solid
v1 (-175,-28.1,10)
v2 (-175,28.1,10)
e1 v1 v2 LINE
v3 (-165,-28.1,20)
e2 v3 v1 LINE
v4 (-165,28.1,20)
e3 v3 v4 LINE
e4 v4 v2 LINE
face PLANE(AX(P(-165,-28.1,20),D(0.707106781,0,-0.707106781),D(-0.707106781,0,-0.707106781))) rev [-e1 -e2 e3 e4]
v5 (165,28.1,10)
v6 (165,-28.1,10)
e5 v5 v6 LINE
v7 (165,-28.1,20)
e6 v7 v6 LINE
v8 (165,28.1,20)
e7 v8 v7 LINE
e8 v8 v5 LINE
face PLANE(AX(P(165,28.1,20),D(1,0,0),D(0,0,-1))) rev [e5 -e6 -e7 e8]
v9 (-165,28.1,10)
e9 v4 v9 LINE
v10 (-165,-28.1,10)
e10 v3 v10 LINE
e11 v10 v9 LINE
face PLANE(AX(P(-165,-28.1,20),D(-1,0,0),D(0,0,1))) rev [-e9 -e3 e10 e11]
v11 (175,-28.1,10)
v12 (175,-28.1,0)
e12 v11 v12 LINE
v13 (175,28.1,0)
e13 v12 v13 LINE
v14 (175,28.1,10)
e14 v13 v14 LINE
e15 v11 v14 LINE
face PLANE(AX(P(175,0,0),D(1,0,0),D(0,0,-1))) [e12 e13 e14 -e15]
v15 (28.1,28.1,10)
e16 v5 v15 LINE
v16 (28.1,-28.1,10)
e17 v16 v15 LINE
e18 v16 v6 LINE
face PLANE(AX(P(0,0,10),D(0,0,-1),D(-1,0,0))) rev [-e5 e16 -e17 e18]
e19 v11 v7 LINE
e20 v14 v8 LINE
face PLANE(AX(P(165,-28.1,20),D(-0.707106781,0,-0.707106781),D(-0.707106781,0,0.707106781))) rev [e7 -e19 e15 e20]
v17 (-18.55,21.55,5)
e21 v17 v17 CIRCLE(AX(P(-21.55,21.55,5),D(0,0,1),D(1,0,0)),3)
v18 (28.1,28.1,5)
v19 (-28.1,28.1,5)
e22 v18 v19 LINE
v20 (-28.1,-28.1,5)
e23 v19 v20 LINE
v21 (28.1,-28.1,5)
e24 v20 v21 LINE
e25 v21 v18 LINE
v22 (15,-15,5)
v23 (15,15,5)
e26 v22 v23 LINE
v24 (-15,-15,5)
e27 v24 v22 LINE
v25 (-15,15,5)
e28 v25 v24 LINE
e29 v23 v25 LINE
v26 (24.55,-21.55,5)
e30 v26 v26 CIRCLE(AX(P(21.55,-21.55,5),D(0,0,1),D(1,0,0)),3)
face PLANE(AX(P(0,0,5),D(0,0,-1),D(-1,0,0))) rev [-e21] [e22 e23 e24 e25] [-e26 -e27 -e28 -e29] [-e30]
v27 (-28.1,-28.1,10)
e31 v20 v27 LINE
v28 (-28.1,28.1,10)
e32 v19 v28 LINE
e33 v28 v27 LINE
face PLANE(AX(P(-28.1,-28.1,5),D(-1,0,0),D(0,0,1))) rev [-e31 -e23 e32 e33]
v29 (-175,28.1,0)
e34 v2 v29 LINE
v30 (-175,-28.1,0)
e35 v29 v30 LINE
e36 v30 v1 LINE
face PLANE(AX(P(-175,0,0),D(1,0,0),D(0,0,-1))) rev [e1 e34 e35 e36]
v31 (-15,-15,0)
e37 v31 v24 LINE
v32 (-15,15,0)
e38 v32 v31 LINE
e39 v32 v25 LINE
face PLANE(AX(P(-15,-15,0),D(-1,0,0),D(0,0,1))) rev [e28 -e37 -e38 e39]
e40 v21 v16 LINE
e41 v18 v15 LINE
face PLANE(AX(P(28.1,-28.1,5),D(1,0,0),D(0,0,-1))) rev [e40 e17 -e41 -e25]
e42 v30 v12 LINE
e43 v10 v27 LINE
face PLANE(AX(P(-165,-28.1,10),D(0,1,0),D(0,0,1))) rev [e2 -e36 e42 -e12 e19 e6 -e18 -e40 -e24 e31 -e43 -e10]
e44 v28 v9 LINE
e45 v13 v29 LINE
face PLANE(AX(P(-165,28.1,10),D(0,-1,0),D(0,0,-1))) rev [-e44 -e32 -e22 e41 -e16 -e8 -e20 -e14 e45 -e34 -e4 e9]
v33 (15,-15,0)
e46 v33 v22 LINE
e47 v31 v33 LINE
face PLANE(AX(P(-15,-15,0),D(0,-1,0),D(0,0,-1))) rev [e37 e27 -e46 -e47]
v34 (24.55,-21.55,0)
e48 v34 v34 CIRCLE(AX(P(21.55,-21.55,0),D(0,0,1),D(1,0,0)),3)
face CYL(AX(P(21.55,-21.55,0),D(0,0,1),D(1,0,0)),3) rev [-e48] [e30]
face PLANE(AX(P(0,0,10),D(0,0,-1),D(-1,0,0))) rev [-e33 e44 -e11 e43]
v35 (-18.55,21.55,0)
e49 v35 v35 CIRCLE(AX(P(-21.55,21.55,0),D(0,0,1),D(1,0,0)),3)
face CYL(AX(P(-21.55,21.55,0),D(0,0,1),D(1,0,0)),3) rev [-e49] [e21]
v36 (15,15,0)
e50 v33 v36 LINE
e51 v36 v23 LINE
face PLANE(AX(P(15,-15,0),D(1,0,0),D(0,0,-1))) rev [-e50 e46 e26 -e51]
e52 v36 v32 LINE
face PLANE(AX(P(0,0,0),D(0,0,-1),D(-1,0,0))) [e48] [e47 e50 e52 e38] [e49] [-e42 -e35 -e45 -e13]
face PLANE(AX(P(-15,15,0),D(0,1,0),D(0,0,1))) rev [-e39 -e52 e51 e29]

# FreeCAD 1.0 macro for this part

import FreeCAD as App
import Part
import Sketcher


def add_polygon(sketch, points):
    """Adds a closed chain of lines whose ends are joined by coincident constraints."""
    first, n = sketch.GeometryCount, len(points)
    for a, b in zip(points, points[1:] + points[:1]):
        sketch.addGeometry(Part.LineSegment(App.Vector(*a, 0), App.Vector(*b, 0)), False)
    for i in range(n):
        sketch.addConstraint(Sketcher.Constraint("Coincident", first + i, 2, first + (i + 1) % n, 1))

doc = App.newDocument("Part")
body = doc.addObject("PartDesign::Body", "Body")

# Sketch on XY plane
sketch1 = doc.addObject("Sketcher::SketchObject", "Sketch")
body.addObject(sketch1)
sketch1.AttachmentSupport = (doc.XY_Plane, [""])
sketch1.MapMode = "FlatFace"
add_polygon(sketch1, [(-165, 28), (-165, -28), (165, -28), (165, 28)])  # lines 0-3
sketch1.addConstraint([
    Sketcher.Constraint("Vertical", 0),
    Sketcher.Constraint("Horizontal", 1),
    Sketcher.Constraint("Vertical", 2),
    Sketcher.Constraint("Horizontal", 3),
    Sketcher.Constraint("Symmetric", 0, 2, 2, 2, -1, 1),
    Sketcher.Constraint("DistanceX", 1, 1, 1, 2, 330.0),
    Sketcher.Constraint("DistanceY", 0, 2, 0, 1, 56.2),
])
pad1 = doc.addObject("PartDesign::Pad", "Pad")
body.addObject(pad1)
pad1.Profile = sketch1
pad1.Length = 10

# Sketch on XY plane
sketch2 = doc.addObject("Sketcher::SketchObject", "Sketch001")
body.addObject(sketch2)
sketch2.AttachmentSupport = (doc.XY_Plane, [""])
sketch2.MapMode = "FlatFace"
sketch2.AttachmentOffset = App.Placement(App.Vector(0, 0, 10), App.Rotation())
add_polygon(sketch2, [(-28, 28), (-28, -28), (28, -28), (28, 28)])  # lines 0-3
sketch2.addConstraint([
    Sketcher.Constraint("Vertical", 0),
    Sketcher.Constraint("Horizontal", 1),
    Sketcher.Constraint("Vertical", 2),
    Sketcher.Constraint("Horizontal", 3),
    Sketcher.Constraint("Symmetric", 0, 2, 2, 2, -1, 1),
    Sketcher.Constraint("Equal", 3, 0),
    Sketcher.Constraint("DistanceX", 1, 1, 1, 2, 56.2),
])
pocket1 = doc.addObject("PartDesign::Pocket", "Pocket")
body.addObject(pocket1)
pocket1.Profile = sketch2
pocket1.Length = 5

# Sketch on YZ plane
sketch3 = doc.addObject("Sketcher::SketchObject", "Sketch002")
body.addObject(sketch3)
sketch3.AttachmentSupport = (doc.YZ_Plane, [""])
sketch3.MapMode = "FlatFace"
sketch3.AttachmentOffset = App.Placement(App.Vector(0, 0, 165), App.Rotation())
add_polygon(sketch3, [(28, 10), (-28, 10), (-28, 0), (28, 0)])  # lines 0-3
sketch3.addConstraint([
    Sketcher.Constraint("Horizontal", 0),
    Sketcher.Constraint("Vertical", 1),
    Sketcher.Constraint("Horizontal", 2),
    Sketcher.Constraint("Vertical", 3),
    Sketcher.Constraint("Symmetric", 1, 2, 2, 2, -1, 1),
    Sketcher.Constraint("DistanceY", 1, 2, 1, 1, 10.0),
    Sketcher.Constraint("DistanceX", 0, 2, 0, 1, 56.2),
])
pad2 = doc.addObject("PartDesign::Pad", "Pad001")
body.addObject(pad2)
pad2.Profile = sketch3
pad2.Length = 10

# Sketch on XY plane
sketch4 = doc.addObject("Sketcher::SketchObject", "Sketch003")
body.addObject(sketch4)
sketch4.AttachmentSupport = (doc.XY_Plane, [""])
sketch4.MapMode = "FlatFace"
sketch4.AttachmentOffset = App.Placement(App.Vector(0, 0, 10), App.Rotation())
add_polygon(sketch4, [(165, 28), (165, -28), (175, -28), (175, 28)])  # lines 0-3
sketch4.addConstraint([
    Sketcher.Constraint("Vertical", 0),
    Sketcher.Constraint("Horizontal", 1),
    Sketcher.Constraint("Vertical", 2),
    Sketcher.Constraint("Horizontal", 3),
    Sketcher.Constraint("DistanceX", 1, 1, 1, 2, 10.0),
    Sketcher.Constraint("DistanceY", 0, 2, 0, 1, 56.2),
    Sketcher.Constraint("DistanceX", -1, 1, 0, 2, 165.0),
    Sketcher.Constraint("DistanceY", 0, 2, -1, 1, 28.1),
])
pad3 = doc.addObject("PartDesign::Pad", "Pad002")
body.addObject(pad3)
pad3.Profile = sketch4
pad3.Length = 10

# Sketch on XZ plane
sketch5 = doc.addObject("Sketcher::SketchObject", "Sketch004")
body.addObject(sketch5)
sketch5.AttachmentSupport = (doc.XZ_Plane, [""])
sketch5.MapMode = "FlatFace"
sketch5.AttachmentOffset = App.Placement(App.Vector(0, 0, -28.1), App.Rotation())
add_polygon(sketch5, [(175, 10), (165, 20), (175, 20)])  # lines 0-2
sketch5.addConstraint([
    Sketcher.Constraint("Horizontal", 1),
    Sketcher.Constraint("Vertical", 2),
    Sketcher.Constraint("Equal", 1, 2),
    Sketcher.Constraint("DistanceX", 1, 1, 1, 2, 10.0),
    Sketcher.Constraint("DistanceX", -1, 1, 0, 2, 165.0),
    Sketcher.Constraint("DistanceY", -1, 1, 0, 2, 20.0),
])
pocket2 = doc.addObject("PartDesign::Pocket", "Pocket001")
body.addObject(pocket2)
pocket2.Profile = sketch5
pocket2.Length = 56.2
pocket2.Reversed = True

# Sketch on YZ plane
sketch6 = doc.addObject("Sketcher::SketchObject", "Sketch005")
body.addObject(sketch6)
sketch6.AttachmentSupport = (doc.YZ_Plane, [""])
sketch6.MapMode = "FlatFace"
sketch6.AttachmentOffset = App.Placement(App.Vector(0, 0, -165), App.Rotation())
add_polygon(sketch6, [(28, 0), (-28, 0), (-28, 10), (28, 10)])  # lines 0-3
sketch6.addConstraint([
    Sketcher.Constraint("Horizontal", 0),
    Sketcher.Constraint("Vertical", 1),
    Sketcher.Constraint("Horizontal", 2),
    Sketcher.Constraint("Vertical", 3),
    Sketcher.Constraint("Symmetric", 0, 2, 3, 2, -1, 1),
    Sketcher.Constraint("DistanceY", 1, 1, 1, 2, 10.0),
    Sketcher.Constraint("DistanceX", 0, 2, 0, 1, 56.2),
])
pad4 = doc.addObject("PartDesign::Pad", "Pad003")
body.addObject(pad4)
pad4.Profile = sketch6
pad4.Length = 10
pad4.Reversed = True

# Sketch on XY plane
sketch7 = doc.addObject("Sketcher::SketchObject", "Sketch006")
body.addObject(sketch7)
sketch7.AttachmentSupport = (doc.XY_Plane, [""])
sketch7.MapMode = "FlatFace"
sketch7.AttachmentOffset = App.Placement(App.Vector(0, 0, 10), App.Rotation())
add_polygon(sketch7, [(-175, 28), (-175, -28), (-165, -28), (-165, 28)])  # lines 0-3
sketch7.addConstraint([
    Sketcher.Constraint("Vertical", 0),
    Sketcher.Constraint("Horizontal", 1),
    Sketcher.Constraint("Vertical", 2),
    Sketcher.Constraint("Horizontal", 3),
    Sketcher.Constraint("DistanceX", 1, 1, 1, 2, 10.0),
    Sketcher.Constraint("DistanceY", 0, 2, 0, 1, 56.2),
    Sketcher.Constraint("DistanceX", 0, 2, -1, 1, 175.0),
    Sketcher.Constraint("DistanceY", 0, 2, -1, 1, 28.1),
])
pad5 = doc.addObject("PartDesign::Pad", "Pad004")
body.addObject(pad5)
pad5.Profile = sketch7
pad5.Length = 10

# Sketch on XZ plane
sketch8 = doc.addObject("Sketcher::SketchObject", "Sketch007")
body.addObject(sketch8)
sketch8.AttachmentSupport = (doc.XZ_Plane, [""])
sketch8.MapMode = "FlatFace"
sketch8.AttachmentOffset = App.Placement(App.Vector(0, 0, -28.1), App.Rotation())
add_polygon(sketch8, [(-165, 20), (-175, 10), (-175, 20)])  # lines 0-2
sketch8.addConstraint([
    Sketcher.Constraint("Vertical", 1),
    Sketcher.Constraint("Horizontal", 2),
    Sketcher.Constraint("Equal", 2, 1),
    Sketcher.Constraint("DistanceX", 2, 1, 2, 2, 10.0),
    Sketcher.Constraint("DistanceX", 0, 2, -1, 1, 175.0),
    Sketcher.Constraint("DistanceY", -1, 1, 0, 2, 10.0),
])
pocket3 = doc.addObject("PartDesign::Pocket", "Pocket002")
body.addObject(pocket3)
pocket3.Profile = sketch8
pocket3.Length = 56.2
pocket3.Reversed = True

# Sketch on XY plane
sketch9 = doc.addObject("Sketcher::SketchObject", "Sketch008")
body.addObject(sketch9)
sketch9.AttachmentSupport = (doc.XY_Plane, [""])
sketch9.MapMode = "FlatFace"
sketch9.AttachmentOffset = App.Placement(App.Vector(0, 0, 5), App.Rotation())
add_polygon(sketch9, [(-15, 15), (-15, -15), (15, -15), (15, 15)])  # lines 0-3
sketch9.addConstraint([
    Sketcher.Constraint("Vertical", 0),
    Sketcher.Constraint("Horizontal", 1),
    Sketcher.Constraint("Vertical", 2),
    Sketcher.Constraint("Horizontal", 3),
    Sketcher.Constraint("Symmetric", 0, 2, 2, 2, -1, 1),
    Sketcher.Constraint("Equal", 3, 0),
    Sketcher.Constraint("DistanceX", 1, 1, 1, 2, 30.0),
])
pocket4 = doc.addObject("PartDesign::Pocket", "Pocket003")
body.addObject(pocket4)
pocket4.Profile = sketch9
pocket4.Length = 5

# Sketch on XY plane
sketch10 = doc.addObject("Sketcher::SketchObject", "Sketch009")
body.addObject(sketch10)
sketch10.AttachmentSupport = (doc.XY_Plane, [""])
sketch10.MapMode = "FlatFace"
sketch10.AttachmentOffset = App.Placement(App.Vector(0, 0, 5), App.Rotation())
sketch10.addGeometry([
    Part.Circle(App.Vector(-21.6, 21.6, 0), App.Vector(0, 0, 1), 3),
    Part.Circle(App.Vector(21.6, -21.6, 0), App.Vector(0, 0, 1), 3),
], False)
sketch10.addConstraint([
    Sketcher.Constraint("Equal", 0, 1),
    Sketcher.Constraint("Symmetric", 0, 3, 1, 3, -1, 1),
    Sketcher.Constraint("Diameter", 0, 6.0),
    Sketcher.Constraint("DistanceX", 0, 3, 1, 3, 43.1),
    Sketcher.Constraint("DistanceY", 1, 3, 0, 3, 43.1),
])
pocket5 = doc.addObject("PartDesign::Pocket", "Pocket004")
body.addObject(pocket5)
pocket5.Profile = sketch10
pocket5.Length = 5

doc.recompute()
